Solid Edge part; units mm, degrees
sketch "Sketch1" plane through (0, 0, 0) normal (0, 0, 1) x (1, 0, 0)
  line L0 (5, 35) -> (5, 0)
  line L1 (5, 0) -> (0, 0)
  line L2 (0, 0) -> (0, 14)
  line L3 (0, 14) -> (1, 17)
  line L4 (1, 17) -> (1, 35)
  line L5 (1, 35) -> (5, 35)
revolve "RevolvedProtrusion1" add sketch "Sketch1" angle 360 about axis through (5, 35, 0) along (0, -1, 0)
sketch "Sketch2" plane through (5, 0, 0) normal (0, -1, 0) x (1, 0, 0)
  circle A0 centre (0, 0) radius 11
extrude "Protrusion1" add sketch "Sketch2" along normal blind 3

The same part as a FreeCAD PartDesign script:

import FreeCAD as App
import Part
import Sketcher
from FreeCAD import Vector

doc = App.newDocument("Part")
body = doc.addObject("PartDesign::Body", "Body")

sketch1 = doc.addObject("Sketcher::SketchObject", "Sketch")
body.addObject(sketch1)
sketch1.AttachmentSupport = (doc.XY_Plane, [""])
sketch1.MapMode = "FlatFace"
sketch1.addGeometry([
    Part.LineSegment(Vector(5, 0, 0), Vector(5, 35, 0)),
    Part.LineSegment(Vector(5, 35, 0), Vector(1, 35, 0)),
    Part.LineSegment(Vector(1, 35, 0), Vector(1, 17, 0)),
    Part.LineSegment(Vector(1, 17, 0), Vector(0, 14, 0)),
    Part.LineSegment(Vector(0, 14, 0), Vector(0, 0, 0)),
    Part.LineSegment(Vector(0, 0, 0), Vector(5, 0, 0)),
], False)
sketch1.addGeometry(Part.LineSegment(Vector(5, 35, 0), Vector(5, 0, 0)), True)
sketch1.addConstraint([
    Sketcher.Constraint("Coincident", 0, 2, 1, 1),
    Sketcher.Constraint("Coincident", 1, 2, 2, 1),
    Sketcher.Constraint("Coincident", 2, 2, 3, 1),
    Sketcher.Constraint("Coincident", 3, 2, 4, 1),
    Sketcher.Constraint("Coincident", 4, 2, 5, 1),
    Sketcher.Constraint("Coincident", 5, 2, 0, 1),
    Sketcher.Constraint("Vertical", 0),
    Sketcher.Constraint("Horizontal", 1),
    Sketcher.Constraint("Vertical", 2),
    Sketcher.Constraint("Vertical", 4),
    Sketcher.Constraint("Horizontal", 5),
    Sketcher.Constraint("Vertical", 6),
    Sketcher.Constraint("Coincident", 4, 2, -1, 1),
    Sketcher.Constraint("Coincident", 6, 1, 0, 2),
    Sketcher.Constraint("PointOnObject", 6, 2, -1),
    Sketcher.Constraint("DistanceX", 1, 2, 1, 1, 4.0),
    Sketcher.Constraint("DistanceX", 5, 1, 5, 2, 5.0),
    Sketcher.Constraint("DistanceY", 0, 1, 0, 2, 35.0),
    Sketcher.Constraint("DistanceY", 2, 2, 2, 1, 18.0),
    Sketcher.Constraint("DistanceY", 4, 2, 4, 1, 14.0),
])
revolution = doc.addObject("PartDesign::Revolution", "Revolution")
body.addObject(revolution)
revolution.Profile = sketch1
revolution.ReferenceAxis = (sketch1, ["Axis0"])
revolution.Angle = 360

sketch2 = doc.addObject("Sketcher::SketchObject", "Sketch001")
body.addObject(sketch2)
sketch2.AttachmentSupport = (doc.XZ_Plane, [""])
sketch2.MapMode = "FlatFace"
sketch2.addGeometry(Part.Circle(Vector(5, 0, 0), Vector(0, 0, 1), 11), False)
sketch2.addConstraint([
    Sketcher.Constraint("PointOnObject", 0, 3, -1),
    Sketcher.Constraint("Diameter", 0, 22.0),
    Sketcher.Constraint("DistanceX", -1, 1, 0, 3, 5.0),
])
pad1 = doc.addObject("PartDesign::Pad", "Pad")
body.addObject(pad1)
pad1.Profile = sketch2
pad1.Length = 3

doc.recompute()
